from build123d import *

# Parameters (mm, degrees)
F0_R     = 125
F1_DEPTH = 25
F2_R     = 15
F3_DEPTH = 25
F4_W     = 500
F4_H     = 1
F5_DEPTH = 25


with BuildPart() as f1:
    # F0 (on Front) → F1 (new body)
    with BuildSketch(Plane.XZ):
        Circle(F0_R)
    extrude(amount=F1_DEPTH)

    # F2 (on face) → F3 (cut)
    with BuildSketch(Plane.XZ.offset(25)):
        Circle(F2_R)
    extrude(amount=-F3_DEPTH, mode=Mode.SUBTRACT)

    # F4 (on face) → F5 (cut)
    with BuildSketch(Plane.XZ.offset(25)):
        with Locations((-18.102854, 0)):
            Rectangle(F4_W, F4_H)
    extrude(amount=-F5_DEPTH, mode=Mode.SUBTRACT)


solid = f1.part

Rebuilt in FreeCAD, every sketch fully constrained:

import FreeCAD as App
import Part
import Sketcher

V = App.Vector
Q = App.Units.Quantity

doc = App.newDocument("Part")
body = doc.addObject("PartDesign::Body", "Body")
body.AllowCompound = True

# Sketch on XZ plane
sketch1 = body.newObject("Sketcher::SketchObject", "Sketch")
sketch1.AttachmentSupport = (doc.getObject("XZ_Plane"), [""])
sketch1.MapMode = "FlatFace"
sketch1.addGeometry(Part.Circle(V(0, 0, 0), V(0, 0, 1), 125), False)
sketch1.addConstraint([
    Sketcher.Constraint("Coincident", 0, 3, -1, 1),
    Sketcher.Constraint("Diameter", 0, Q("250 mm")),
])
pad1 = body.newObject("PartDesign::Pad", "Pad")
pad1.Profile = sketch1
pad1.Length = 25

# Sketch on XZ plane
sketch2 = body.newObject("Sketcher::SketchObject", "Sketch001")
sketch2.AttachmentSupport = (doc.getObject("XZ_Plane"), [""])
sketch2.MapMode = "FlatFace"
sketch2.AttachmentOffset = App.Placement(V(0, 0, 25), App.Rotation())
sketch2.addGeometry(Part.Circle(V(0, 0, 0), V(0, 0, 1), 15), False)
sketch2.addConstraint([
    Sketcher.Constraint("Coincident", 0, 3, -1, 1),
    Sketcher.Constraint("Diameter", 0, Q("30 mm")),
])
pocket1 = body.newObject("PartDesign::Pocket", "Pocket")
pocket1.Profile = sketch2
pocket1.Length = 25

# Sketch on XZ plane
sketch3 = body.newObject("Sketcher::SketchObject", "Sketch002")
sketch3.AttachmentSupport = (doc.getObject("XZ_Plane"), [""])
sketch3.MapMode = "FlatFace"
sketch3.AttachmentOffset = App.Placement(V(0, 0, 25), App.Rotation())
sketch3.addGeometry([
    Part.LineSegment(V(-268.1, 0.5, 0), V(-268.1, -0.5, 0)),
    Part.LineSegment(V(-268.1, -0.5, 0), V(231.9, -0.5, 0)),
    Part.LineSegment(V(231.9, -0.5, 0), V(231.9, 0.5, 0)),
    Part.LineSegment(V(231.9, 0.5, 0), V(-268.1, 0.5, 0)),
], False)
sketch3.addConstraint([
    Sketcher.Constraint("Coincident", 0, 2, 1, 1),
    Sketcher.Constraint("Coincident", 1, 2, 2, 1),
    Sketcher.Constraint("Coincident", 2, 2, 3, 1),
    Sketcher.Constraint("Coincident", 3, 2, 0, 1),
    Sketcher.Constraint("Vertical", 0),
    Sketcher.Constraint("Horizontal", 1),
    Sketcher.Constraint("Vertical", 2),
    Sketcher.Constraint("Horizontal", 3),
    Sketcher.Constraint("DistanceX", 1, 1, 1, 2, Q("500 mm")),
    Sketcher.Constraint("DistanceY", 0, 2, 0, 1, Q("1 mm")),
    Sketcher.Constraint("DistanceY", 0, 2, -1, 1, Q("0.5 mm")),
    Sketcher.Constraint("DistanceX", 0, 2, -1, 1, Q("268.102854 mm")),
])
pocket2 = body.newObject("PartDesign::Pocket", "Pocket001")
pocket2.Profile = sketch3
pocket2.Length = 25

doc.recompute()
